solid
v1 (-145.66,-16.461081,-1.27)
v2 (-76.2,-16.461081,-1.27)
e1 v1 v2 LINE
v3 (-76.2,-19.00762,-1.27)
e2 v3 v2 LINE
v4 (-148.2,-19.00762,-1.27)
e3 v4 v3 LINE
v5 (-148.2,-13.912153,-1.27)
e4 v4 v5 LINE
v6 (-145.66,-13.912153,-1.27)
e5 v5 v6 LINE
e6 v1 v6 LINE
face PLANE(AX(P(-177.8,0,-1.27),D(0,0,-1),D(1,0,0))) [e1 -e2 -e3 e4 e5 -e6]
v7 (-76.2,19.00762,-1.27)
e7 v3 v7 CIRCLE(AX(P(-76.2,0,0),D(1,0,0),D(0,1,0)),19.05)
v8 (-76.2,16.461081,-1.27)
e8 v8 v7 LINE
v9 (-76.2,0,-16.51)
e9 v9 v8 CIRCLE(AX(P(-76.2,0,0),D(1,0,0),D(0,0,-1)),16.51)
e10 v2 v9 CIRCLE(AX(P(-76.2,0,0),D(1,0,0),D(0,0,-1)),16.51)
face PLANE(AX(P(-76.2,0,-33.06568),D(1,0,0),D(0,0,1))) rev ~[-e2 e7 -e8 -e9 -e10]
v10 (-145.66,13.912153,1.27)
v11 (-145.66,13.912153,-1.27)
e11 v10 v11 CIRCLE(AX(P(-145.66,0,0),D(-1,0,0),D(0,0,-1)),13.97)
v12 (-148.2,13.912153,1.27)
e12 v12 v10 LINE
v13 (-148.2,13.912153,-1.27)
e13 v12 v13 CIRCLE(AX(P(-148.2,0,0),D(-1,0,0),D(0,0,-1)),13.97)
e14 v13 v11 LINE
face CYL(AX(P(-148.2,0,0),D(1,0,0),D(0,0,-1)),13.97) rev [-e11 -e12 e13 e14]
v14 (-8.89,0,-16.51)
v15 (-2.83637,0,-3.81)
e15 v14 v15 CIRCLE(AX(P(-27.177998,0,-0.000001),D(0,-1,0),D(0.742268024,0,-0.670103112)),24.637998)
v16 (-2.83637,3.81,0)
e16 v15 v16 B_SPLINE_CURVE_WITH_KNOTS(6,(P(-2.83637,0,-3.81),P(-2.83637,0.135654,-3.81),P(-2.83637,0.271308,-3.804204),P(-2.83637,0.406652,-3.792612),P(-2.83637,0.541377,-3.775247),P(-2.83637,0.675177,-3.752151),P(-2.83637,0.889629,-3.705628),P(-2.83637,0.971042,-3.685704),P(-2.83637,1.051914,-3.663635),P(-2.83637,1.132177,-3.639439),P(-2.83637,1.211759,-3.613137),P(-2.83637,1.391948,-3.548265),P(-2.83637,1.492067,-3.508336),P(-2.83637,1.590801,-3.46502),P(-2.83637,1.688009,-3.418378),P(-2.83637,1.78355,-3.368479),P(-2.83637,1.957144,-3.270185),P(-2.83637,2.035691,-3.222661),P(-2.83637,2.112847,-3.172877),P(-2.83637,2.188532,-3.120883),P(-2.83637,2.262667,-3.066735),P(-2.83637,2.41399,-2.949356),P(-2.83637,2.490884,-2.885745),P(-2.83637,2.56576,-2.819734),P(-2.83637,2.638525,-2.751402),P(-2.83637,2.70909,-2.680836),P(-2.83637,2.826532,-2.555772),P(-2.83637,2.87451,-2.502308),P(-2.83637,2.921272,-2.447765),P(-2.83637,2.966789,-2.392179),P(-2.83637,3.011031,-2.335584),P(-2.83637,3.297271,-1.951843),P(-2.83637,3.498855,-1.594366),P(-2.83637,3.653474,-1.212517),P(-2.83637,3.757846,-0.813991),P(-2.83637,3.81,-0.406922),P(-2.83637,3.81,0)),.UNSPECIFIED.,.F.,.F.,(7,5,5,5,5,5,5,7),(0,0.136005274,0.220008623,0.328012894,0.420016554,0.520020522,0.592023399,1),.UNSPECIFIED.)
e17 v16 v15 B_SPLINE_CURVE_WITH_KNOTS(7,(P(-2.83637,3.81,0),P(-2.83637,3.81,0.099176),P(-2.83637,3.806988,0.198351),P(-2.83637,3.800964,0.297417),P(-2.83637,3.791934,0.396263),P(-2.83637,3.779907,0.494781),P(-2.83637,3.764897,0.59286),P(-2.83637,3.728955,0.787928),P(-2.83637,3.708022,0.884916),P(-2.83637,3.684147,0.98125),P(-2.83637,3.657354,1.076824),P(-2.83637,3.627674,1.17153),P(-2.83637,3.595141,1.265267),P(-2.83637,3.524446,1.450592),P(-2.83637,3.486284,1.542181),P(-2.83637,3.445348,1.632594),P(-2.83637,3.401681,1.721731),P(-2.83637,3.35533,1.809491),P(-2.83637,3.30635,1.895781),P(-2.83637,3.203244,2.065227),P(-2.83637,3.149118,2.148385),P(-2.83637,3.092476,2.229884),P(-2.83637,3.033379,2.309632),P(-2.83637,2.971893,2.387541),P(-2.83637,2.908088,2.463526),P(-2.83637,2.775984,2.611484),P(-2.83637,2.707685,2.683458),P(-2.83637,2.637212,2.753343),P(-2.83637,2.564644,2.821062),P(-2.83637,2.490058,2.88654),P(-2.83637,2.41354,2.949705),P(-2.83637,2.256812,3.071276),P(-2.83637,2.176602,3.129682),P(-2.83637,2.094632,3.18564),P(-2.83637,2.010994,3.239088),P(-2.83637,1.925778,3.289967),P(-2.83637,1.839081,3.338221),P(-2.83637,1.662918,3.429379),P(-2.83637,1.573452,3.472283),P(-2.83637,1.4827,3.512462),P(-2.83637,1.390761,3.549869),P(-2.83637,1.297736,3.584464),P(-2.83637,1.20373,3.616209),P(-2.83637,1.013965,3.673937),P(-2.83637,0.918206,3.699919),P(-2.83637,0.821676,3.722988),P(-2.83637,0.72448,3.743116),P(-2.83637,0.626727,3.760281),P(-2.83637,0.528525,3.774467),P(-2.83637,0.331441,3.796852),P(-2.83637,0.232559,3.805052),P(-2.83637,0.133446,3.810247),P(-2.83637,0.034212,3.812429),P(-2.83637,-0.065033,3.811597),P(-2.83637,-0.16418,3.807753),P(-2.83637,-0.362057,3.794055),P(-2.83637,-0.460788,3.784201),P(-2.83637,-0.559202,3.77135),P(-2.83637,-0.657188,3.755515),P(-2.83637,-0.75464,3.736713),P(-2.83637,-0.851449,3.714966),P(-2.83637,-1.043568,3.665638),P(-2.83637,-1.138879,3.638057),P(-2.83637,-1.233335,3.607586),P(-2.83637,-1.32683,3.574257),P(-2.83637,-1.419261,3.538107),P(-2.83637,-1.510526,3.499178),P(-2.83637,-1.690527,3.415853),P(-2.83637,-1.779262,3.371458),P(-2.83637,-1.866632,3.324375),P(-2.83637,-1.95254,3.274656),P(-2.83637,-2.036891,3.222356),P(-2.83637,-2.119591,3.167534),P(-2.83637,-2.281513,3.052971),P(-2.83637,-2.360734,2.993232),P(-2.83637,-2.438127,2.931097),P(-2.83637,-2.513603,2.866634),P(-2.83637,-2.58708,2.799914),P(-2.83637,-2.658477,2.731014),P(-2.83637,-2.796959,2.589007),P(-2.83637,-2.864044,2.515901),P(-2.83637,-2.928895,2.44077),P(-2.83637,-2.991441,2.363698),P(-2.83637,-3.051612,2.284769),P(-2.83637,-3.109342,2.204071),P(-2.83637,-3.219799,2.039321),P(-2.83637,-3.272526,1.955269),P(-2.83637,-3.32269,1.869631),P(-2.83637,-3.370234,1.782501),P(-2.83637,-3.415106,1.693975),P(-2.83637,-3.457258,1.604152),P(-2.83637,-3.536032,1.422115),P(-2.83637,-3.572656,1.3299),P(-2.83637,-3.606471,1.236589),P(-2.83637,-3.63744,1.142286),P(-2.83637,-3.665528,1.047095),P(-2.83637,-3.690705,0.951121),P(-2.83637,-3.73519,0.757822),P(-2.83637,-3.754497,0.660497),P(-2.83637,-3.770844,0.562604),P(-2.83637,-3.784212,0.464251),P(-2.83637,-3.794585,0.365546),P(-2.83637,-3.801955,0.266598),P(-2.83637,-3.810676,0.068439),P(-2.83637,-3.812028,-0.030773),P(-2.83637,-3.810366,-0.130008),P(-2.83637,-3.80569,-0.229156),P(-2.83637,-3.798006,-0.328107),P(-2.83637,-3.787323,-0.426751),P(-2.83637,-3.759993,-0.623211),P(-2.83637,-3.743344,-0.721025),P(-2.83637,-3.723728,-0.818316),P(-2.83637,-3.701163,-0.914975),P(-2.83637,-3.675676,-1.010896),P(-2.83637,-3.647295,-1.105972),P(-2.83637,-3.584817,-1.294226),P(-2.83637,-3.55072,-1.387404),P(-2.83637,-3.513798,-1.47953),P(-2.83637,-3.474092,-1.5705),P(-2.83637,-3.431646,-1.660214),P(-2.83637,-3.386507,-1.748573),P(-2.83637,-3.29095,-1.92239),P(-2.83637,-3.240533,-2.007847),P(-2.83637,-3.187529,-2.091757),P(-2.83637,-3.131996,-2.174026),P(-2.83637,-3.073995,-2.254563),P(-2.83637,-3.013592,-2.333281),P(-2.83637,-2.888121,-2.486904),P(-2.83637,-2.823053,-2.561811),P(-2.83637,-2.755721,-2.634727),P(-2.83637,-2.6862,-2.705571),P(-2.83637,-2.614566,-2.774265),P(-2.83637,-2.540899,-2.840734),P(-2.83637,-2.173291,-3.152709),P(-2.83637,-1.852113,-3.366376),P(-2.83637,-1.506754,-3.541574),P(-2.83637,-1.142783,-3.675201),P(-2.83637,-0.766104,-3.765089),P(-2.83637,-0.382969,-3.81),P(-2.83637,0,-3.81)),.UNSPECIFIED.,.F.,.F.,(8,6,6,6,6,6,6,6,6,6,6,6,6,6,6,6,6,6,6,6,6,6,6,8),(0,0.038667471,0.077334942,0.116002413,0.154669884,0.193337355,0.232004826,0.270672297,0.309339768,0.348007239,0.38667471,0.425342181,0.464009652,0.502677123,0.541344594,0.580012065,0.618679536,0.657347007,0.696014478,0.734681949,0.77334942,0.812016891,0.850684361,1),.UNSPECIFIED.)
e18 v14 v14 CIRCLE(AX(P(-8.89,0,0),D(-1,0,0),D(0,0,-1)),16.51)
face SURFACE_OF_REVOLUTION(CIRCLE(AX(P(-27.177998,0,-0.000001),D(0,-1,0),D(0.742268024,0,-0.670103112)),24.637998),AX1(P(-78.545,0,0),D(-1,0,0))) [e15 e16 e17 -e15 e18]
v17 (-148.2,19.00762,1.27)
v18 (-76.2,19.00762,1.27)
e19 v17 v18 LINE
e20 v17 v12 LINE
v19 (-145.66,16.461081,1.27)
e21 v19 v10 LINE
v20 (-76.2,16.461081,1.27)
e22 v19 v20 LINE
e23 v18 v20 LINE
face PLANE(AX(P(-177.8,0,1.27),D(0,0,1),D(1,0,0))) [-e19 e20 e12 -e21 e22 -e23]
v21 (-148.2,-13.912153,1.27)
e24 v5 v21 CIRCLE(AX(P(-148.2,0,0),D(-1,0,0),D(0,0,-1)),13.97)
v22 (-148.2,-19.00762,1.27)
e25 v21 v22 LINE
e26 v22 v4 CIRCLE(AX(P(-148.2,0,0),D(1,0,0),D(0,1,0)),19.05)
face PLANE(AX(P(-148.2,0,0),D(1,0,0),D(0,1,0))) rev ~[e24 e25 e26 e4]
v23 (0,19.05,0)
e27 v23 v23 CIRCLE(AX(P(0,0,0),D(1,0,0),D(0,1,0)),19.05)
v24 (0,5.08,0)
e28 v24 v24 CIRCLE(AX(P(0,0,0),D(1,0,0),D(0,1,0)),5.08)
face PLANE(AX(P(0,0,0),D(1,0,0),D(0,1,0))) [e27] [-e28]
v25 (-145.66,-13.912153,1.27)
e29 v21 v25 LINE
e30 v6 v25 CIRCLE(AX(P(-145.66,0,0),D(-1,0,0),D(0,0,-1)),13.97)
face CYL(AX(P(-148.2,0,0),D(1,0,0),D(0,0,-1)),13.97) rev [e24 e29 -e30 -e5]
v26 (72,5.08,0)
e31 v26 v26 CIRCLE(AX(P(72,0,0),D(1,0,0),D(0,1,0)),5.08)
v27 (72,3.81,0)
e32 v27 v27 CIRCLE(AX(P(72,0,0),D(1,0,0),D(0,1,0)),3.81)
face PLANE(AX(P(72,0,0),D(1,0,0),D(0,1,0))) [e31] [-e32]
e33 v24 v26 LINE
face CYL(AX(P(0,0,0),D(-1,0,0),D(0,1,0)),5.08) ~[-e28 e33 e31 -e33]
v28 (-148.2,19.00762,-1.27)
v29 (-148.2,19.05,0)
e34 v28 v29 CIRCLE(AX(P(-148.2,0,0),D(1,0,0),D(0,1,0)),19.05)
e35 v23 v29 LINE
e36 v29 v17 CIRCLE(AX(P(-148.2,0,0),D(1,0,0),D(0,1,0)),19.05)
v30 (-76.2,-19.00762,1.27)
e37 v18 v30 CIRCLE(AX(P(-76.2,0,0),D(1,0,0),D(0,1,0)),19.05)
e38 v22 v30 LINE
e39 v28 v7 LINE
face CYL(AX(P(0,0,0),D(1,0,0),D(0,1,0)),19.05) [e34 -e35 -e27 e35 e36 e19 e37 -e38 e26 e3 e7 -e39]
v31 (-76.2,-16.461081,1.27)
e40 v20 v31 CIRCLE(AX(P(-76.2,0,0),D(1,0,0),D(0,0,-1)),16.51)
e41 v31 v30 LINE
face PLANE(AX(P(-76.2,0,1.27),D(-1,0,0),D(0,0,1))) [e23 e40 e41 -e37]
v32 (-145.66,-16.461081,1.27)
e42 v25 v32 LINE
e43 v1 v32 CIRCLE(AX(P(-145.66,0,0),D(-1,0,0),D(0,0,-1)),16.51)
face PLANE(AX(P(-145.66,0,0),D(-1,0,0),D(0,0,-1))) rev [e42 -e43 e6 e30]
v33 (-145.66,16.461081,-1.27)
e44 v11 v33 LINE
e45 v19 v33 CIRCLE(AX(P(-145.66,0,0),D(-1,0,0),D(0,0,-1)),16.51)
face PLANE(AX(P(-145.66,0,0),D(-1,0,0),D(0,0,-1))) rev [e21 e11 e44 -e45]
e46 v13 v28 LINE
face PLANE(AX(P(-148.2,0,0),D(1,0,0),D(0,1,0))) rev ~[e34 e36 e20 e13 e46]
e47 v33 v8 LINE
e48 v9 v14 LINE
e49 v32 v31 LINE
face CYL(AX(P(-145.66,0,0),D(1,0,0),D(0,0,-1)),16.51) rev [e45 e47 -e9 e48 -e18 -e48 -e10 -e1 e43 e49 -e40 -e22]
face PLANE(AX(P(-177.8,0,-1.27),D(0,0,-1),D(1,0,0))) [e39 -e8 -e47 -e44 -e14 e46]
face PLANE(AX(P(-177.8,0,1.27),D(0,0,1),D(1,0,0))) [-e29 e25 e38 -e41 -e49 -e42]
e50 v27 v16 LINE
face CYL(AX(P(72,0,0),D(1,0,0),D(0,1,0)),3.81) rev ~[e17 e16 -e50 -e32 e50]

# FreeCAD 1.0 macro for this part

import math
import FreeCAD as App
import Part
import Sketcher

V = App.Vector
Q = App.Units.Quantity


def add_polygon(sketch, points):
    """Adds a closed chain of lines whose ends are joined by coincident constraints."""
    first, n = sketch.GeometryCount, len(points)
    for a, b in zip(points, points[1:] + points[:1]):
        sketch.addGeometry(Part.LineSegment(App.Vector(*a, 0), App.Vector(*b, 0)), False)
    for i in range(n):
        sketch.addConstraint(Sketcher.Constraint("Coincident", first + i, 2, first + (i + 1) % n, 1))

doc = App.newDocument("Part")
body = doc.addObject("PartDesign::Body", "Body")

# Sketch on YZ plane
sketch1 = body.newObject("Sketcher::SketchObject", "Sketch")
sketch1.AttachmentSupport = (doc.getObject("YZ_Plane"), [""])
sketch1.MapMode = "FlatFace"
sketch1.addGeometry(Part.Circle(V(0, 0, 0), V(0, 0, 1), 19), False)
sketch1.addConstraint([
    Sketcher.Constraint("Coincident", 0, 3, -1, 1),
    Sketcher.Constraint("Diameter", 0, Q("1.5 in")),
])
pad1 = body.newObject("PartDesign::Pad", "Pad")
pad1.Profile = sketch1
pad1.Length = 148.2
pad1.Reversed = True

# Sketch on XZ plane
sketch2 = body.newObject("Sketcher::SketchObject", "Sketch001")
sketch2.AttachmentSupport = (doc.getObject("XZ_Plane"), [""])
sketch2.MapMode = "FlatFace"
sketch2.addGeometry([
    Part.ArcOfCircle(Part.Circle(V(-27.2, 0, 0), V(0, 0, 1), 24.6), math.radians(-42), math.radians(0)),  # 0
    Part.LineSegment(V(-2.5, 0, 0), V(-148.2, 0, 0)),  # 1
    Part.LineSegment(V(-148.2, 0, 0), V(-148.2, -14, 0)),  # 2
    Part.LineSegment(V(-148.2, -14, 0), V(-145.7, -14, 0)),  # 3
    Part.LineSegment(V(-145.7, -14, 0), V(-145.7, -16.5, 0)),  # 4
    Part.LineSegment(V(-145.7, -16.5, 0), V(-8.9, -16.5, 0)),  # 5
], False)
sketch2.addConstraint([
    Sketcher.Constraint("Coincident", 0, 2, 1, 1),
    Sketcher.Constraint("Coincident", 1, 2, 2, 1),
    Sketcher.Constraint("Coincident", 2, 2, 3, 1),
    Sketcher.Constraint("Coincident", 3, 2, 4, 1),
    Sketcher.Constraint("Coincident", 4, 2, 5, 1),
    Sketcher.Constraint("Coincident", 5, 2, 0, 1),
    Sketcher.Constraint("Horizontal", 1),
    Sketcher.Constraint("Vertical", 2),
    Sketcher.Constraint("Horizontal", 3),
    Sketcher.Constraint("Vertical", 4),
    Sketcher.Constraint("Horizontal", 5),
    Sketcher.Constraint("PointOnObject", 0, 3, -1),
    Sketcher.Constraint("PointOnObject", 0, 2, -1),
    Sketcher.Constraint("Equal", 3, 4),
    Sketcher.Constraint("Radius", 0, Q("0.9699999 in")),
    Sketcher.Constraint("DistanceX", 3, 1, 3, 2, Q("0.1 in")),
    Sketcher.Constraint("DistanceY", 2, 2, 2, 1, Q("0.55 in")),
    Sketcher.Constraint("DistanceX", 0, 2, -1, 1, Q("0.1 in")),
    Sketcher.Constraint("DistanceX", 1, 2, 1, 1, Q("145.66 mm")),
])
groove = body.newObject("PartDesign::Groove", "Groove")
groove.Profile = sketch2
groove.ReferenceAxis = (sketch2, ["H_Axis"])
groove.Angle = 360

# Sketch on XZ plane
sketch3 = body.newObject("Sketcher::SketchObject", "Sketch002")
sketch3.AttachmentSupport = (doc.getObject("XZ_Plane"), [""])
sketch3.MapMode = "FlatFace"
add_polygon(sketch3, [(-178, 1), (-76, 1), (-76, 26), (-179, 26)])  # lines 0-3
add_polygon(sketch3, [(-178, -1), (-178, -33), (-76, -33), (-76, -1)])  # lines 4-7
sketch3.addConstraint([
    Sketcher.Constraint("Horizontal", 0),
    Sketcher.Constraint("Vertical", 1),
    Sketcher.Constraint("Horizontal", 2),
    Sketcher.Constraint("Vertical", 4),
    Sketcher.Constraint("Horizontal", 5),
    Sketcher.Constraint("Vertical", 6),
    Sketcher.Constraint("Horizontal", 7),
    Sketcher.Constraint("Symmetric", 0, 2, 6, 2, -1),
    Sketcher.Constraint("Vertical", 3, 2, 4, 2),
    Sketcher.Constraint("DistanceX", 0, 1, 0, 2, Q("4 in")),
    Sketcher.Constraint("DistanceX", 0, 2, -1, 1, Q("3 in")),
    Sketcher.Constraint("DistanceY", 6, 2, 0, 2, Q("0.1 in")),
    Sketcher.Constraint("DistanceY", 4, 2, 4, 1, Q("31.79568 mm")),
    Sketcher.Constraint("DistanceX", 2, 2, 2, 1, Q("102.792286 mm")),
    Sketcher.Constraint("DistanceY", 1, 1, 1, 2, Q("24.782563 mm")),
])
pocket1 = body.newObject("PartDesign::Pocket", "Pocket")
pocket1.Profile = sketch3
pocket1.Length = Q("2 in")
pocket1.Midplane = True

# Sketch on YZ plane
sketch4 = body.newObject("Sketcher::SketchObject", "Sketch003")
sketch4.AttachmentSupport = (doc.getObject("YZ_Plane"), [""])
sketch4.MapMode = "FlatFace"
sketch4.addGeometry(Part.Circle(V(0, 0, 0), V(0, 0, 1), 5), False)
sketch4.addConstraint([
    Sketcher.Constraint("Coincident", 0, 3, -1, 1),
    Sketcher.Constraint("Diameter", 0, Q("0.4 in")),
])
pad2 = body.newObject("PartDesign::Pad", "Pad001")
pad2.Profile = sketch4
pad2.Length = 72

# Sketch on YZ plane
sketch5 = body.newObject("Sketcher::SketchObject", "Sketch004")
sketch5.AttachmentSupport = (doc.getObject("YZ_Plane"), [""])
sketch5.MapMode = "FlatFace"
sketch5.AttachmentOffset = App.Placement(V(0, 0, 72), App.Rotation())
sketch5.addGeometry(Part.Circle(V(0, 0, 0), V(0, 0, 1), 3.8), False)
sketch5.addConstraint([
    Sketcher.Constraint("Coincident", 0, 3, -1, 1),
    Sketcher.Constraint("Diameter", 0, Q("0.3 in")),
])
pocket2 = body.newObject("PartDesign::Pocket", "Pocket001")
pocket2.Profile = sketch5
pocket2.Length = Q("6 in")

doc.recompute()
